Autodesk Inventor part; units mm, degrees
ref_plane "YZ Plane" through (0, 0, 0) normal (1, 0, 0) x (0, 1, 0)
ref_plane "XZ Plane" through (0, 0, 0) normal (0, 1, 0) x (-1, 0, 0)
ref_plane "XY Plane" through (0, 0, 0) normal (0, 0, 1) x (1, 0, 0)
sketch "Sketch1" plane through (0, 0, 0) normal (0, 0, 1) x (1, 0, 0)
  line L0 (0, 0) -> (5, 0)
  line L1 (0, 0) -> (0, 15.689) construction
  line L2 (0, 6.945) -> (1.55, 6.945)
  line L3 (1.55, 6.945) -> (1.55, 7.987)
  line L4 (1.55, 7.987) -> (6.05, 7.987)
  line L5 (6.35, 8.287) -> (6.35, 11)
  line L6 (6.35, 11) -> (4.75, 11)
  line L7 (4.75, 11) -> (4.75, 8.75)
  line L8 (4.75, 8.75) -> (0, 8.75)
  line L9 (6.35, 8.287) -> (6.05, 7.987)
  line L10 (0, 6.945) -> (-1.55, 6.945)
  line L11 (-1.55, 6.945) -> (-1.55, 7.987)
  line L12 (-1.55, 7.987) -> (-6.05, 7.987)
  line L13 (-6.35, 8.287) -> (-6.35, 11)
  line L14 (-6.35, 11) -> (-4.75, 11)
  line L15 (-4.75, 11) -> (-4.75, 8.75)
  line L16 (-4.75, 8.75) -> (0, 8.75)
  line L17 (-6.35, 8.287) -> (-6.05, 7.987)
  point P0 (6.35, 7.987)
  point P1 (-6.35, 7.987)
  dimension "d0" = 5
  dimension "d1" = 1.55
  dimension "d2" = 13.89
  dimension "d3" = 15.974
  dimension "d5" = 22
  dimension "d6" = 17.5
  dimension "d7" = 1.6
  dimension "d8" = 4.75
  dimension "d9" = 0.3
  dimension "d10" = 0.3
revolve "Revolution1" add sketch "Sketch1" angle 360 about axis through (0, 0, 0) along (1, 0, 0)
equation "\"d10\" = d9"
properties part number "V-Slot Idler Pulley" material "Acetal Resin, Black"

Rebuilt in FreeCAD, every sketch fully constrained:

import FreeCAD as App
import Part
import Sketcher

V = App.Vector


def add_polygon(sketch, points):
    """Adds a closed chain of lines whose ends are joined by coincident constraints."""
    first, n = sketch.GeometryCount, len(points)
    for a, b in zip(points, points[1:] + points[:1]):
        sketch.addGeometry(Part.LineSegment(App.Vector(*a, 0), App.Vector(*b, 0)), False)
    for i in range(n):
        sketch.addConstraint(Sketcher.Constraint("Coincident", first + i, 2, first + (i + 1) % n, 1))

doc = App.newDocument("Part")
body = doc.addObject("PartDesign::Body", "Body")

sketch1 = body.newObject("Sketcher::SketchObject", "Sketch")
sketch1.AttachmentSupport = (doc.getObject("XY_Plane"), [""])
sketch1.MapMode = "FlatFace"
add_polygon(sketch1, [(-1.55, 6.95), (1.55, 6.95), (1.55, 7.99), (6.05, 7.99), (6.35, 8.29), (6.35, 11), (4.75, 11), (4.75, 8.75), (-4.75, 8.75), (-4.75, 11), (-6.35, 11), (-6.35, 8.29), (-6.05, 7.99), (-1.55, 7.99)])
sketch1.addConstraint(Sketcher.Constraint("Horizontal", 0))
sketch1.addConstraint(Sketcher.Constraint("Vertical", 1))
sketch1.addConstraint(Sketcher.Constraint("Horizontal", 2))
sketch1.addConstraint(Sketcher.Constraint("Vertical", 4))
sketch1.addConstraint(Sketcher.Constraint("Horizontal", 5))
sketch1.addConstraint(Sketcher.Constraint("Vertical", 6))
sketch1.addConstraint(Sketcher.Constraint("Horizontal", 7))
sketch1.addConstraint(Sketcher.Constraint("Vertical", 8))
sketch1.addConstraint(Sketcher.Constraint("Horizontal", 9))
sketch1.addConstraint(Sketcher.Constraint("Vertical", 10))
sketch1.addConstraint(Sketcher.Constraint("Horizontal", 12))
sketch1.addConstraint(Sketcher.Constraint("Vertical", 13))
sketch1.addConstraint(Sketcher.Constraint("Symmetric", 5, 2, 8, 2, -2))
sketch1.addConstraint(Sketcher.Constraint("Symmetric", 3, 2, 10, 2, -2))
sketch1.addConstraint(Sketcher.Constraint("Symmetric", 2, 2, 11, 2, -2))
sketch1.addConstraint(Sketcher.Constraint("Perpendicular", 3, 11))
sketch1.addConstraint(Sketcher.Constraint("Equal", 2, 12))
sketch1.addConstraint(Sketcher.Constraint("DistanceX", 5, 2, 5, 1, 1.6))
sketch1.addConstraint(Sketcher.Constraint("DistanceX", 2, 2, 3, 2, 0.3))
sketch1.addConstraint(Sketcher.Constraint("DistanceX", -1, 1, 0, 2, 1.55))
sketch1.addConstraint(Sketcher.Constraint("DistanceX", -1, 1, 5, 2, 4.75))
sketch1.addConstraint(Sketcher.Constraint("DistanceY", -1, 1, 4, 2, 11.0))
sketch1.addConstraint(Sketcher.Constraint("DistanceY", 6, 2, 6, 1, 2.25))
sketch1.addConstraint(Sketcher.Constraint("DistanceY", 1, 1, 1, 2, 1.042))
sketch1.addConstraint(Sketcher.Constraint("DistanceY", 4, 1, 4, 2, 2.713))
revolution = body.newObject("PartDesign::Revolution", "Revolution")
revolution.Profile = sketch1
revolution.ReferenceAxis = (sketch1, ["H_Axis"])
revolution.Angle = 360

doc.recompute()
